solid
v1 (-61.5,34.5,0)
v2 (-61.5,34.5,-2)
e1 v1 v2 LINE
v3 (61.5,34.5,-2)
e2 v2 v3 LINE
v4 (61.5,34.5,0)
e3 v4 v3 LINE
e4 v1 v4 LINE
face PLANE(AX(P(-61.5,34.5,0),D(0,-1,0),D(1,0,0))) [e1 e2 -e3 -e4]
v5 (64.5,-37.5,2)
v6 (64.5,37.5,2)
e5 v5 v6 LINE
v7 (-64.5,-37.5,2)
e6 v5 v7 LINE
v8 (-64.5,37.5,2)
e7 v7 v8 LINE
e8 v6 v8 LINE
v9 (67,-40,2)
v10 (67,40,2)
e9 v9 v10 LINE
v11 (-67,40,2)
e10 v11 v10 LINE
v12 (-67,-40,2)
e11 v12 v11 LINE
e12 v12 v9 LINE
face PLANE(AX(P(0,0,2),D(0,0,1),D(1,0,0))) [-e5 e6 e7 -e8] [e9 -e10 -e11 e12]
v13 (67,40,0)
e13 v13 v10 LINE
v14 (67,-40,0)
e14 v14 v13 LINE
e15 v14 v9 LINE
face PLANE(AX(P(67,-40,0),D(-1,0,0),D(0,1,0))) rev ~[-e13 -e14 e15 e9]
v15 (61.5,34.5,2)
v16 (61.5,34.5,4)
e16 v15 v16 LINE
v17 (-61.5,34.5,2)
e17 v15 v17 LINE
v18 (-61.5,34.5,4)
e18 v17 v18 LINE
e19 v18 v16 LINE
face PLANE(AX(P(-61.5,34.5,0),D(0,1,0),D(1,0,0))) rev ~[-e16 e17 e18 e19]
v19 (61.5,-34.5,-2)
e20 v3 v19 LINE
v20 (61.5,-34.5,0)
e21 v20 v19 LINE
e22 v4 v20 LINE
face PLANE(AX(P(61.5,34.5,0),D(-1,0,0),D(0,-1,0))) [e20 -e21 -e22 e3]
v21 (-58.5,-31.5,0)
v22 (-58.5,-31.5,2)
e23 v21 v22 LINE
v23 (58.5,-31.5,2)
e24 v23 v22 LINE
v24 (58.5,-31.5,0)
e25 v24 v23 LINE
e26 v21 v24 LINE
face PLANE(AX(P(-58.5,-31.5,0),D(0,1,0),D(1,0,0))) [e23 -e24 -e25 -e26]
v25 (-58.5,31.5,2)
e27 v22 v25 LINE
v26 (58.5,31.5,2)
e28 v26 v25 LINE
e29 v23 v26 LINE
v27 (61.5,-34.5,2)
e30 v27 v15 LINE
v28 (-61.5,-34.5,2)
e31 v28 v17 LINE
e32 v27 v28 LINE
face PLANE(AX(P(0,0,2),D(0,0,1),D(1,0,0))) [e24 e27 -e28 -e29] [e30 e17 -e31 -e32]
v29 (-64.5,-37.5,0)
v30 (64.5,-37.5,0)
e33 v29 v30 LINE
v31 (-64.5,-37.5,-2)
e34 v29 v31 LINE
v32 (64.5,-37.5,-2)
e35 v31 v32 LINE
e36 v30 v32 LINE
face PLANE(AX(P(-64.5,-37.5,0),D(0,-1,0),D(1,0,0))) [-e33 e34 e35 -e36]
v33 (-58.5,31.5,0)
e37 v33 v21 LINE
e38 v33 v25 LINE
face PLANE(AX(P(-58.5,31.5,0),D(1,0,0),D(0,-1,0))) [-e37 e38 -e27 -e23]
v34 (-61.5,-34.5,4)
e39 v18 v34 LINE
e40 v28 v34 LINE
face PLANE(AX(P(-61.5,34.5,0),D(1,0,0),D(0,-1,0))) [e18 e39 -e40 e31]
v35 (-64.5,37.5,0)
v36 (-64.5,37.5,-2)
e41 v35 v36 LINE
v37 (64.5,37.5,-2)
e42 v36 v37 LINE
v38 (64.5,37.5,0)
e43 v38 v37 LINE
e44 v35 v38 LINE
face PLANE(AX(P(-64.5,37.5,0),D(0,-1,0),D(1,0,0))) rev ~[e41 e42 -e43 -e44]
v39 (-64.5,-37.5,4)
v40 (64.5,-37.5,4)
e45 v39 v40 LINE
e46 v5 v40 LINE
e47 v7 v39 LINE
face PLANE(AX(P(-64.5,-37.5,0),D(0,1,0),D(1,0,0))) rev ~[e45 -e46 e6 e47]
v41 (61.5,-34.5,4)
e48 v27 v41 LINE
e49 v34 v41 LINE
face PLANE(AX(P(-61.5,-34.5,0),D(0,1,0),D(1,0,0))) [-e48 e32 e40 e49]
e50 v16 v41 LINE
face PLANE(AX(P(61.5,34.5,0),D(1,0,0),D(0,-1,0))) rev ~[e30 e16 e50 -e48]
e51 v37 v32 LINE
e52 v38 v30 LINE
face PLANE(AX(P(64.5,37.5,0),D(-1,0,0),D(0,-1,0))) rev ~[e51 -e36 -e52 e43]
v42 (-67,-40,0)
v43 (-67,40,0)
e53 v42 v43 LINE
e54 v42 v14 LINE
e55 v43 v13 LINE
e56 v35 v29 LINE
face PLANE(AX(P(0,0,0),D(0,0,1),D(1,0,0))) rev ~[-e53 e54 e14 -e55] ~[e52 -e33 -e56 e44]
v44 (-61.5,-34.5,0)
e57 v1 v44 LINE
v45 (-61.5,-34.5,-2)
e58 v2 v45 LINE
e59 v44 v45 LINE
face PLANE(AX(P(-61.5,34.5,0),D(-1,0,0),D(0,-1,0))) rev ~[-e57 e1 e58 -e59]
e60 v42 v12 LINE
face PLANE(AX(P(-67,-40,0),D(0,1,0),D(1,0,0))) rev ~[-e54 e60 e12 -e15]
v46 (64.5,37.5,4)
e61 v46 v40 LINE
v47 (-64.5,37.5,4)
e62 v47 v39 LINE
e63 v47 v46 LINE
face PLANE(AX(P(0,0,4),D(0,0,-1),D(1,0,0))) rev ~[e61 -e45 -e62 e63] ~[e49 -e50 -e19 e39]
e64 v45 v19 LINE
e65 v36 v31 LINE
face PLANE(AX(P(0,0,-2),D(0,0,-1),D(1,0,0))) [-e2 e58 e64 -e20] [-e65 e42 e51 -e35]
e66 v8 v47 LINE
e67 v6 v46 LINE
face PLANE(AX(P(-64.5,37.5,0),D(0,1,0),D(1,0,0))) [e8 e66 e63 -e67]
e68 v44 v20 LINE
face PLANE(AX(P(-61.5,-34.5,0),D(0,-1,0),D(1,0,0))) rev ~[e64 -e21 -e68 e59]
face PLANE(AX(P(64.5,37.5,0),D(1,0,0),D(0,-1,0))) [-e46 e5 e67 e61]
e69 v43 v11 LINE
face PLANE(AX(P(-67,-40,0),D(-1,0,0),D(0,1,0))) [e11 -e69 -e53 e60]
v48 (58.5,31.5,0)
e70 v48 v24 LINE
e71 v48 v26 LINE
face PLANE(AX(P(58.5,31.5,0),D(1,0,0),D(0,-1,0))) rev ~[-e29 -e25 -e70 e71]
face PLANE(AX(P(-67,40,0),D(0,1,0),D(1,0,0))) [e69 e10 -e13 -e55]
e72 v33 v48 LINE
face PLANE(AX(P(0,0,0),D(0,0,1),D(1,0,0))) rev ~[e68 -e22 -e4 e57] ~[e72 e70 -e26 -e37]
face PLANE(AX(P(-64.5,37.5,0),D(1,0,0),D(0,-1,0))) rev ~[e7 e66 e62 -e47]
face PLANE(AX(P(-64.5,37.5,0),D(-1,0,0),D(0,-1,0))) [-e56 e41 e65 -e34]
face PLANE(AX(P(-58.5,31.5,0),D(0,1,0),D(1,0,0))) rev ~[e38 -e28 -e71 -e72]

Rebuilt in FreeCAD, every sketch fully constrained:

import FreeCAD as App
import Part
import Sketcher
from FreeCAD import Vector


def add_polygon(sketch, points):
    """Adds a closed chain of lines whose ends are joined by coincident constraints."""
    first, n = sketch.GeometryCount, len(points)
    for a, b in zip(points, points[1:] + points[:1]):
        sketch.addGeometry(Part.LineSegment(App.Vector(*a, 0), App.Vector(*b, 0)), False)
    for i in range(n):
        sketch.addConstraint(Sketcher.Constraint("Coincident", first + i, 2, first + (i + 1) % n, 1))

doc = App.newDocument("Part")
body = doc.addObject("PartDesign::Body", "Body")

sketch1 = body.newObject("Sketcher::SketchObject", "Sketch")
sketch1.AttachmentSupport = (doc.getObject("XY_Plane"), [""])
sketch1.MapMode = "FlatFace"
add_polygon(sketch1, [(-67, 40), (-67, -40), (67, -40), (67, 40)])
sketch1.addConstraint(Sketcher.Constraint("Vertical", 0))
sketch1.addConstraint(Sketcher.Constraint("Horizontal", 1))
sketch1.addConstraint(Sketcher.Constraint("Vertical", 2))
sketch1.addConstraint(Sketcher.Constraint("Horizontal", 3))
sketch1.addConstraint(Sketcher.Constraint("Symmetric", 0, 2, 2, 2, -1, 1))
sketch1.addConstraint(Sketcher.Constraint("DistanceX", 1, 1, 1, 2, 134.0))
sketch1.addConstraint(Sketcher.Constraint("DistanceY", 0, 2, 0, 1, 80.0))
pad1 = body.newObject("PartDesign::Pad", "Pad")
pad1.Profile = sketch1
pad1.Length = 2

sketch2 = body.newObject("Sketcher::SketchObject", "Sketch001")
sketch2.AttachmentSupport = (doc.getObject("XY_Plane"), [""])
sketch2.MapMode = "FlatFace"
add_polygon(sketch2, [(-64, -38), (-64, 38), (64, 38), (64, -38)])
add_polygon(sketch2, [(62, 34), (-62, 34), (-62, -34), (62, -34)])
sketch2.addConstraint(Sketcher.Constraint("Vertical", 0))
sketch2.addConstraint(Sketcher.Constraint("Horizontal", 1))
sketch2.addConstraint(Sketcher.Constraint("Vertical", 2))
sketch2.addConstraint(Sketcher.Constraint("Horizontal", 3))
sketch2.addConstraint(Sketcher.Constraint("Horizontal", 4))
sketch2.addConstraint(Sketcher.Constraint("Vertical", 5))
sketch2.addConstraint(Sketcher.Constraint("Horizontal", 6))
sketch2.addConstraint(Sketcher.Constraint("Vertical", 7))
sketch2.addConstraint(Sketcher.Constraint("Symmetric", 0, 2, 2, 2, -1, 1))
sketch2.addConstraint(Sketcher.Constraint("Symmetric", 4, 2, 6, 2, -1, 1))
sketch2.addConstraint(Sketcher.Constraint("DistanceX", 1, 1, 1, 2, 129.0))
sketch2.addConstraint(Sketcher.Constraint("DistanceX", 4, 2, 4, 1, 123.0))
sketch2.addConstraint(Sketcher.Constraint("DistanceY", 0, 1, 0, 2, 75.0))
sketch2.addConstraint(Sketcher.Constraint("DistanceY", 5, 2, 5, 1, 69.0))
pad2 = body.newObject("PartDesign::Pad", "Pad001")
pad2.Profile = sketch2
pad2.Type = "TwoLengths"
pad2.Length = 2
pad2.Length2 = 4
pad2.Reversed = True

sketch3 = body.newObject("Sketcher::SketchObject", "Sketch002")
sketch3.AttachmentSupport = (doc.getObject("XY_Plane"), [""])
sketch3.MapMode = "FlatFace"
add_polygon(sketch3, [(-58, -32), (-58, 32), (58, 32), (58, -32)])
sketch3.addConstraint(Sketcher.Constraint("Vertical", 0))
sketch3.addConstraint(Sketcher.Constraint("Horizontal", 1))
sketch3.addConstraint(Sketcher.Constraint("Vertical", 2))
sketch3.addConstraint(Sketcher.Constraint("Horizontal", 3))
sketch3.addConstraint(Sketcher.Constraint("Symmetric", 0, 2, 2, 2, -1, 1))
sketch3.addConstraint(Sketcher.Constraint("DistanceX", 1, 1, 1, 2, 117.0))
sketch3.addConstraint(Sketcher.Constraint("DistanceY", 0, 1, 0, 2, 63.0))
pocket1 = body.newObject("PartDesign::Pocket", "Pocket")
pocket1.Profile = sketch3
pocket1.Length = 25
pocket1.Reversed = True

doc.recompute()
